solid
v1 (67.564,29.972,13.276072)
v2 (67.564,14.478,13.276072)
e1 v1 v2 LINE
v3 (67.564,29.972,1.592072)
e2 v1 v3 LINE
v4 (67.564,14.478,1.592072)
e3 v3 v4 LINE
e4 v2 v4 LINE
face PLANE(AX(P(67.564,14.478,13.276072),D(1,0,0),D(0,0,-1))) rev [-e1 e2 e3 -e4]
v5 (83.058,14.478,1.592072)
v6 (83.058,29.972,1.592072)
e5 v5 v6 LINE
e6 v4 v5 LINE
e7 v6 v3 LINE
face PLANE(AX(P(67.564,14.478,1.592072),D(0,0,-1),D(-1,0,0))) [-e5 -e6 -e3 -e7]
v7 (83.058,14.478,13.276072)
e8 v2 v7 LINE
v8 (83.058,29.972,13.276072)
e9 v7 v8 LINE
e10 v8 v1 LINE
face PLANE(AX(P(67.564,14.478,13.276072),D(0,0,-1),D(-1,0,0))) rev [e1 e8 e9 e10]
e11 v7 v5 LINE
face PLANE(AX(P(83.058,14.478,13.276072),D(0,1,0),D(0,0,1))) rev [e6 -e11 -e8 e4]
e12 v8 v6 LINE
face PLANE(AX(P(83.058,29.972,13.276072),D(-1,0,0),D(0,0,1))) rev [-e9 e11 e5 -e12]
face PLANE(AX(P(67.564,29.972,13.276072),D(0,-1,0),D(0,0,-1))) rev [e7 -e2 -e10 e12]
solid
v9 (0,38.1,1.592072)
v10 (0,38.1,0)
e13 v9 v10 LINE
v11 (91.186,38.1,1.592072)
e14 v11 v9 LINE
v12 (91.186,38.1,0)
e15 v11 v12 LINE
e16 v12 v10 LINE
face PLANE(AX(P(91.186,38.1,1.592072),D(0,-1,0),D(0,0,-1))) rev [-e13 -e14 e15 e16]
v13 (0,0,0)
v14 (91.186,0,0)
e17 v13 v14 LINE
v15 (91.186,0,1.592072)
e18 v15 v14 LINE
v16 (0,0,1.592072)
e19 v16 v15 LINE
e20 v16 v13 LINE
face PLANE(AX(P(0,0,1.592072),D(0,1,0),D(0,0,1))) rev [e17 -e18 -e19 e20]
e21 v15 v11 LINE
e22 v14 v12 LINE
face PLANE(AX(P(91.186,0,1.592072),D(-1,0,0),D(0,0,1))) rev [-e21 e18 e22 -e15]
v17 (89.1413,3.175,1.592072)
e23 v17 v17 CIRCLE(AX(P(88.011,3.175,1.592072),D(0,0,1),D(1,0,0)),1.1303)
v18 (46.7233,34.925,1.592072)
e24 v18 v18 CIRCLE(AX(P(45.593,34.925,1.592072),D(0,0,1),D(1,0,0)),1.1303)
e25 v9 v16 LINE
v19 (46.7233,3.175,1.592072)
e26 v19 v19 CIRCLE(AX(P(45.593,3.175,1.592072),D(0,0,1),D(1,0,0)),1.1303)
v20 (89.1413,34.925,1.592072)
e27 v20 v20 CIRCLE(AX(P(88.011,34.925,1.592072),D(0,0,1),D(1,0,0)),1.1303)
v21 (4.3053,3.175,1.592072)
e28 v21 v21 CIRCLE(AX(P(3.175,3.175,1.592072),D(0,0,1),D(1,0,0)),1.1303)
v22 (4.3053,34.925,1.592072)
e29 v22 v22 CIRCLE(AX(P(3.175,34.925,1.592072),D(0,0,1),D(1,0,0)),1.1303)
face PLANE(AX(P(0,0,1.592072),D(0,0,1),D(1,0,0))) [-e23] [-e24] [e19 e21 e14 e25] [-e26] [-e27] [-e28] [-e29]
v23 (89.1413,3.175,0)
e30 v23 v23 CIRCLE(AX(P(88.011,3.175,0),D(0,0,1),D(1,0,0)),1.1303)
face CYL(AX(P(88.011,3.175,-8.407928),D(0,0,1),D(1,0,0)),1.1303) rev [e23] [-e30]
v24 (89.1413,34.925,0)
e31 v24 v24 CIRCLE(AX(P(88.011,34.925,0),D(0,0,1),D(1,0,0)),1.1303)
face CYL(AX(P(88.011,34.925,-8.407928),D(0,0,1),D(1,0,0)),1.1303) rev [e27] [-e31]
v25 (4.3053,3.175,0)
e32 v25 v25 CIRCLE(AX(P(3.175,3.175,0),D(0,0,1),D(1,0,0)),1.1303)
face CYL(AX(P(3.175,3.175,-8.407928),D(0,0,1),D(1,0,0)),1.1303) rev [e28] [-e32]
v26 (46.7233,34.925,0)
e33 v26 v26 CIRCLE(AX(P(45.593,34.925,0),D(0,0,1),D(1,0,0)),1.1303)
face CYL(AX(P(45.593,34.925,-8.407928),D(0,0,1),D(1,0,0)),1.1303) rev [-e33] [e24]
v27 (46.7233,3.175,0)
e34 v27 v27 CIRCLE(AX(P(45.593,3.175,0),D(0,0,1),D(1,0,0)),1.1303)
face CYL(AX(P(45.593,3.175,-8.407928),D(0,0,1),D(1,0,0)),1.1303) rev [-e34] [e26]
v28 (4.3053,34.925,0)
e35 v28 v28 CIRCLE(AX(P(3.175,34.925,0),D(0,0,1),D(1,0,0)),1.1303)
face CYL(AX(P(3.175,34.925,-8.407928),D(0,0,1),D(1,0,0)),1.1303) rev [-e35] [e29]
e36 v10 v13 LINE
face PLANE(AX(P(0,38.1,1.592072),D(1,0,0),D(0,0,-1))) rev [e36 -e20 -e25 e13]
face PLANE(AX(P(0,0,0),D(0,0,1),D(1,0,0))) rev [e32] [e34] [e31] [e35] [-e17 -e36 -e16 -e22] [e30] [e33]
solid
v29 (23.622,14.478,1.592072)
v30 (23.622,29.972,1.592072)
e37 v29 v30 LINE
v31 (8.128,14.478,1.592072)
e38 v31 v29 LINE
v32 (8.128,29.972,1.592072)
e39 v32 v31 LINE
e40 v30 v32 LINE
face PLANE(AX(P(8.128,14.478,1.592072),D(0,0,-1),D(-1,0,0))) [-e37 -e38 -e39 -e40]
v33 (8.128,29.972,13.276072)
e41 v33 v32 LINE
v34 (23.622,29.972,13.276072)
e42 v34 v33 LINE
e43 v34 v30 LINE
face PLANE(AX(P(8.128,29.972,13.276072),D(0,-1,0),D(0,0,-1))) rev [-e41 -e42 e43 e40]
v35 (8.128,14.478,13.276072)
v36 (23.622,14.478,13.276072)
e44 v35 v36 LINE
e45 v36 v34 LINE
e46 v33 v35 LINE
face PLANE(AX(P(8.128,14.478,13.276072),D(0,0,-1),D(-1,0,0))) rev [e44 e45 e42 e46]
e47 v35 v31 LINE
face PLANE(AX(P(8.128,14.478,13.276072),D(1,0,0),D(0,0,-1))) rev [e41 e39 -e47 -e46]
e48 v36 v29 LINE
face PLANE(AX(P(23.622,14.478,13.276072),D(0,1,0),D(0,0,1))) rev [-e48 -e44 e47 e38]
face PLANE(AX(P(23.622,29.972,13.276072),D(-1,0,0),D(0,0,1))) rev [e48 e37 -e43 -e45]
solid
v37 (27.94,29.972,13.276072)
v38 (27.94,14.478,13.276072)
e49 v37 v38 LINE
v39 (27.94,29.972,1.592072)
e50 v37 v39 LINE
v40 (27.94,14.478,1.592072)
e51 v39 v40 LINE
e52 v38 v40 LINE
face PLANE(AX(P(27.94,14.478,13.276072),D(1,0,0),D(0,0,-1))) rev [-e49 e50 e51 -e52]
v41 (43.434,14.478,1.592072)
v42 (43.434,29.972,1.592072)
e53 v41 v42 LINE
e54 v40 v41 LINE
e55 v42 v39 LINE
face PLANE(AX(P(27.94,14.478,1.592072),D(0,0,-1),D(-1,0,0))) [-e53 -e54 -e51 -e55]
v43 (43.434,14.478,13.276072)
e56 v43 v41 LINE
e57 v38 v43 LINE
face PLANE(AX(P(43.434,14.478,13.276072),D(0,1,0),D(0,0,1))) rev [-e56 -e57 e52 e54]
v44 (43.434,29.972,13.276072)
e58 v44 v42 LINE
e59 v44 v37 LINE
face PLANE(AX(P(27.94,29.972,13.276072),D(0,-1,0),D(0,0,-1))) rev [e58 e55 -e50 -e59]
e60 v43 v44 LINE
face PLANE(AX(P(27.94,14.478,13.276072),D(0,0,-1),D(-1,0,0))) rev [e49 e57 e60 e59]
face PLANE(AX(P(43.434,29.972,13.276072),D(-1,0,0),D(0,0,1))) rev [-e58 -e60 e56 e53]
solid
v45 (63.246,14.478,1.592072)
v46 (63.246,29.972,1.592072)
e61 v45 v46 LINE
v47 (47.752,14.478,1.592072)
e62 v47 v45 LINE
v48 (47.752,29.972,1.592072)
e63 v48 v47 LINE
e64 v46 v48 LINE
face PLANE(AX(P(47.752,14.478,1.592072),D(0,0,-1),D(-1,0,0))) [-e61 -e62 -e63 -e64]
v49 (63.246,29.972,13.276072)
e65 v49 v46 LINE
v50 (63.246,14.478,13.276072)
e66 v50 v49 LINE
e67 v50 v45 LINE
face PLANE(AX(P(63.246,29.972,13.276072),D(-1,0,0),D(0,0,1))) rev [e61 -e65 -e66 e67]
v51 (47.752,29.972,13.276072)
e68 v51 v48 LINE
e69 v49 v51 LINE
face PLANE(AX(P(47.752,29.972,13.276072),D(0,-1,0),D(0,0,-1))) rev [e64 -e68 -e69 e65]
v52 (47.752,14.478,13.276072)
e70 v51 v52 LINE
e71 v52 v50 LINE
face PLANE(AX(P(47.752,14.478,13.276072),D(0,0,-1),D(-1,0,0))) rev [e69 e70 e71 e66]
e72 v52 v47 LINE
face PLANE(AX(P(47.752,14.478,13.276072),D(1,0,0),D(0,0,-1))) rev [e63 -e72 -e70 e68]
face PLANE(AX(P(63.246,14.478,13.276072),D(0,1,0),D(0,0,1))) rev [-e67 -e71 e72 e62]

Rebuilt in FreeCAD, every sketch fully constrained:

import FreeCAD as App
import Part
import Sketcher

V = App.Vector
Q = App.Units.Quantity

doc = App.newDocument("Part")
body = doc.addObject("PartDesign::Body", "Body")

sketch1 = doc.addObject("Sketcher::SketchObject", "Sketch")
body.addObject(sketch1)
sketch1.AttachmentSupport = (doc.XY_Plane, [""])
sketch1.MapMode = "FlatFace"
sketch1.addGeometry([
    Part.LineSegment(V(0, 38, 0), V(0, 0, 0)),
    Part.LineSegment(V(0, 0, 0), V(91, 0, 0)),
    Part.LineSegment(V(91, 0, 0), V(91, 38, 0)),
    Part.LineSegment(V(91, 38, 0), V(0, 38, 0)),
], False)
sketch1.addConstraint([
    Sketcher.Constraint("Coincident", 0, 2, 1, 1),
    Sketcher.Constraint("Coincident", 1, 2, 2, 1),
    Sketcher.Constraint("Coincident", 2, 2, 3, 1),
    Sketcher.Constraint("Coincident", 3, 2, 0, 1),
    Sketcher.Constraint("Vertical", 0),
    Sketcher.Constraint("Horizontal", 1),
    Sketcher.Constraint("Vertical", 2),
    Sketcher.Constraint("Horizontal", 3),
    Sketcher.Constraint("Coincident", 0, 2, -1, 1),
    Sketcher.Constraint("DistanceY", 0, 2, 0, 1, Q("1.5 in")),
    Sketcher.Constraint("DistanceX", 1, 1, 1, 2, Q("3.59 in")),
])
pad1 = doc.addObject("PartDesign::Pad", "Pad")
body.addObject(pad1)
pad1.Profile = sketch1
pad1.Length = 1.592072

sketch2 = doc.addObject("Sketcher::SketchObject", "Sketch001")
body.addObject(sketch2)
sketch2.AttachmentSupport = (doc.XY_Plane, [""])
sketch2.MapMode = "FlatFace"
sketch2.AttachmentOffset = App.Placement(V(0, 0, 1.592072), App.Rotation())
sketch2.addGeometry([
    Part.Circle(V(88, 34.9, 0), V(0, 0, 1), 1.1),
    Part.Circle(V(88, 3.2, 0), V(0, 0, 1), 1.1),
    Part.Circle(V(45.6, 34.9, 0), V(0, 0, 1), 1.1),
    Part.Circle(V(45.6, 3.2, 0), V(0, 0, 1), 1.1),
    Part.Circle(V(3.2, 34.9, 0), V(0, 0, 1), 1.1),
    Part.Circle(V(3.2, 3.2, 0), V(0, 0, 1), 1.1),
], False)
sketch2.addConstraint([
    Sketcher.Constraint("Equal", 0, 1),
    Sketcher.Constraint("Equal", 1, 2),
    Sketcher.Constraint("Equal", 2, 3),
    Sketcher.Constraint("Equal", 3, 4),
    Sketcher.Constraint("Equal", 4, 5),
    Sketcher.Constraint("Horizontal", 0, 3, 2, 3),
    Sketcher.Constraint("Horizontal", 1, 3, 3, 3),
    Sketcher.Constraint("Horizontal", 2, 3, 4, 3),
    Sketcher.Constraint("Horizontal", 3, 3, 5, 3),
    Sketcher.Constraint("Vertical", 0, 3, 1, 3),
    Sketcher.Constraint("Vertical", 2, 3, 3, 3),
    Sketcher.Constraint("Vertical", 4, 3, 5, 3),
    Sketcher.Constraint("Diameter", 0, Q("0.089 in")),
    Sketcher.Constraint("DistanceY", 1, 3, 0, 3, Q("1.25 in")),
    Sketcher.Constraint("DistanceX", 2, 3, 0, 3, Q("1.67 in")),
    Sketcher.Constraint("DistanceX", 4, 3, 2, 3, Q("1.67 in")),
    Sketcher.Constraint("DistanceX", -1, 1, 0, 3, Q("3.465 in")),
    Sketcher.Constraint("DistanceY", -1, 1, 0, 3, Q("1.375 in")),
])
pocket1 = doc.addObject("PartDesign::Pocket", "Pocket")
body.addObject(pocket1)
pocket1.Profile = sketch2
pocket1.Length = 10
body2 = doc.addObject("PartDesign::Body", "Body001")

sketch3 = doc.addObject("Sketcher::SketchObject", "Sketch002")
body2.addObject(sketch3)
sketch3.AttachmentSupport = (doc.getObject("XY_Plane001"), [""])
sketch3.MapMode = "FlatFace"
sketch3.AttachmentOffset = App.Placement(V(0, 0, 1.592072), App.Rotation())
sketch3.addGeometry([
    Part.LineSegment(V(68, 30, 0), V(68, 14, 0)),
    Part.LineSegment(V(68, 14, 0), V(83, 14, 0)),
    Part.LineSegment(V(83, 14, 0), V(83, 30, 0)),
    Part.LineSegment(V(83, 30, 0), V(68, 30, 0)),
], False)
sketch3.addConstraint([
    Sketcher.Constraint("Coincident", 0, 2, 1, 1),
    Sketcher.Constraint("Coincident", 1, 2, 2, 1),
    Sketcher.Constraint("Coincident", 2, 2, 3, 1),
    Sketcher.Constraint("Coincident", 3, 2, 0, 1),
    Sketcher.Constraint("Vertical", 0),
    Sketcher.Constraint("Horizontal", 1),
    Sketcher.Constraint("Vertical", 2),
    Sketcher.Constraint("Horizontal", 3),
    Sketcher.Constraint("Equal", 3, 0),
    Sketcher.Constraint("DistanceX", 1, 1, 1, 2, Q("0.61 in")),
    Sketcher.Constraint("DistanceX", -1, 1, 0, 2, Q("2.66 in")),
    Sketcher.Constraint("DistanceY", -1, 1, 0, 2, Q("0.57 in")),
])
pad2 = doc.addObject("PartDesign::Pad", "Pad001")
body2.addObject(pad2)
pad2.Profile = sketch3
pad2.Length = Q("0.46 in")
body3 = doc.addObject("PartDesign::Body", "Body002")

sketch4 = doc.addObject("Sketcher::SketchObject", "Sketch003")
body3.addObject(sketch4)
sketch4.AttachmentSupport = (doc.getObject("XY_Plane002"), [""])
sketch4.MapMode = "FlatFace"
sketch4.AttachmentOffset = App.Placement(V(0, 0, 1.592072), App.Rotation())
sketch4.addGeometry([
    Part.LineSegment(V(48, 30, 0), V(48, 14, 0)),
    Part.LineSegment(V(48, 14, 0), V(63, 14, 0)),
    Part.LineSegment(V(63, 14, 0), V(63, 30, 0)),
    Part.LineSegment(V(63, 30, 0), V(48, 30, 0)),
], False)
sketch4.addConstraint([
    Sketcher.Constraint("Coincident", 0, 2, 1, 1),
    Sketcher.Constraint("Coincident", 1, 2, 2, 1),
    Sketcher.Constraint("Coincident", 2, 2, 3, 1),
    Sketcher.Constraint("Coincident", 3, 2, 0, 1),
    Sketcher.Constraint("Vertical", 0),
    Sketcher.Constraint("Horizontal", 1),
    Sketcher.Constraint("Vertical", 2),
    Sketcher.Constraint("Horizontal", 3),
    Sketcher.Constraint("Equal", 3, 0),
    Sketcher.Constraint("DistanceX", 1, 1, 1, 2, Q("0.61 in")),
    Sketcher.Constraint("DistanceX", -1, 1, 0, 2, Q("1.88 in")),
    Sketcher.Constraint("DistanceY", -1, 1, 0, 2, Q("0.57 in")),
])
pad3 = doc.addObject("PartDesign::Pad", "Pad002")
body3.addObject(pad3)
pad3.Profile = sketch4
pad3.Length = Q("0.46 in")
body4 = doc.addObject("PartDesign::Body", "Body003")

sketch5 = doc.addObject("Sketcher::SketchObject", "Sketch004")
body4.addObject(sketch5)
sketch5.AttachmentSupport = (doc.getObject("XY_Plane003"), [""])
sketch5.MapMode = "FlatFace"
sketch5.AttachmentOffset = App.Placement(V(0, 0, 1.592072), App.Rotation())
sketch5.addGeometry([
    Part.LineSegment(V(28, 30, 0), V(28, 14, 0)),
    Part.LineSegment(V(28, 14, 0), V(43, 14, 0)),
    Part.LineSegment(V(43, 14, 0), V(43, 30, 0)),
    Part.LineSegment(V(43, 30, 0), V(28, 30, 0)),
], False)
sketch5.addConstraint([
    Sketcher.Constraint("Coincident", 0, 2, 1, 1),
    Sketcher.Constraint("Coincident", 1, 2, 2, 1),
    Sketcher.Constraint("Coincident", 2, 2, 3, 1),
    Sketcher.Constraint("Coincident", 3, 2, 0, 1),
    Sketcher.Constraint("Vertical", 0),
    Sketcher.Constraint("Horizontal", 1),
    Sketcher.Constraint("Vertical", 2),
    Sketcher.Constraint("Horizontal", 3),
    Sketcher.Constraint("Equal", 3, 0),
    Sketcher.Constraint("DistanceX", 1, 1, 1, 2, Q("0.61 in")),
    Sketcher.Constraint("DistanceX", -1, 1, 0, 2, Q("1.1 in")),
    Sketcher.Constraint("DistanceY", -1, 1, 0, 2, Q("0.57 in")),
])
pad4 = doc.addObject("PartDesign::Pad", "Pad003")
body4.addObject(pad4)
pad4.Profile = sketch5
pad4.Length = Q("0.46 in")
body5 = doc.addObject("PartDesign::Body", "Body004")

sketch6 = doc.addObject("Sketcher::SketchObject", "Sketch005")
body5.addObject(sketch6)
sketch6.AttachmentSupport = (doc.getObject("XY_Plane004"), [""])
sketch6.MapMode = "FlatFace"
sketch6.AttachmentOffset = App.Placement(V(0, 0, 1.592072), App.Rotation())
sketch6.addGeometry([
    Part.LineSegment(V(8, 30, 0), V(8, 14, 0)),
    Part.LineSegment(V(8, 14, 0), V(24, 14, 0)),
    Part.LineSegment(V(24, 14, 0), V(24, 30, 0)),
    Part.LineSegment(V(24, 30, 0), V(8, 30, 0)),
], False)
sketch6.addConstraint([
    Sketcher.Constraint("Coincident", 0, 2, 1, 1),
    Sketcher.Constraint("Coincident", 1, 2, 2, 1),
    Sketcher.Constraint("Coincident", 2, 2, 3, 1),
    Sketcher.Constraint("Coincident", 3, 2, 0, 1),
    Sketcher.Constraint("Vertical", 0),
    Sketcher.Constraint("Horizontal", 1),
    Sketcher.Constraint("Vertical", 2),
    Sketcher.Constraint("Horizontal", 3),
    Sketcher.Constraint("Equal", 3, 0),
    Sketcher.Constraint("DistanceX", 1, 1, 1, 2, Q("0.61 in")),
    Sketcher.Constraint("DistanceX", -1, 1, 0, 2, Q("0.32 in")),
    Sketcher.Constraint("DistanceY", -1, 1, 0, 2, Q("0.57 in")),
])
pad5 = doc.addObject("PartDesign::Pad", "Pad004")
body5.addObject(pad5)
pad5.Profile = sketch6
pad5.Length = Q("0.46 in")

doc.recompute()
